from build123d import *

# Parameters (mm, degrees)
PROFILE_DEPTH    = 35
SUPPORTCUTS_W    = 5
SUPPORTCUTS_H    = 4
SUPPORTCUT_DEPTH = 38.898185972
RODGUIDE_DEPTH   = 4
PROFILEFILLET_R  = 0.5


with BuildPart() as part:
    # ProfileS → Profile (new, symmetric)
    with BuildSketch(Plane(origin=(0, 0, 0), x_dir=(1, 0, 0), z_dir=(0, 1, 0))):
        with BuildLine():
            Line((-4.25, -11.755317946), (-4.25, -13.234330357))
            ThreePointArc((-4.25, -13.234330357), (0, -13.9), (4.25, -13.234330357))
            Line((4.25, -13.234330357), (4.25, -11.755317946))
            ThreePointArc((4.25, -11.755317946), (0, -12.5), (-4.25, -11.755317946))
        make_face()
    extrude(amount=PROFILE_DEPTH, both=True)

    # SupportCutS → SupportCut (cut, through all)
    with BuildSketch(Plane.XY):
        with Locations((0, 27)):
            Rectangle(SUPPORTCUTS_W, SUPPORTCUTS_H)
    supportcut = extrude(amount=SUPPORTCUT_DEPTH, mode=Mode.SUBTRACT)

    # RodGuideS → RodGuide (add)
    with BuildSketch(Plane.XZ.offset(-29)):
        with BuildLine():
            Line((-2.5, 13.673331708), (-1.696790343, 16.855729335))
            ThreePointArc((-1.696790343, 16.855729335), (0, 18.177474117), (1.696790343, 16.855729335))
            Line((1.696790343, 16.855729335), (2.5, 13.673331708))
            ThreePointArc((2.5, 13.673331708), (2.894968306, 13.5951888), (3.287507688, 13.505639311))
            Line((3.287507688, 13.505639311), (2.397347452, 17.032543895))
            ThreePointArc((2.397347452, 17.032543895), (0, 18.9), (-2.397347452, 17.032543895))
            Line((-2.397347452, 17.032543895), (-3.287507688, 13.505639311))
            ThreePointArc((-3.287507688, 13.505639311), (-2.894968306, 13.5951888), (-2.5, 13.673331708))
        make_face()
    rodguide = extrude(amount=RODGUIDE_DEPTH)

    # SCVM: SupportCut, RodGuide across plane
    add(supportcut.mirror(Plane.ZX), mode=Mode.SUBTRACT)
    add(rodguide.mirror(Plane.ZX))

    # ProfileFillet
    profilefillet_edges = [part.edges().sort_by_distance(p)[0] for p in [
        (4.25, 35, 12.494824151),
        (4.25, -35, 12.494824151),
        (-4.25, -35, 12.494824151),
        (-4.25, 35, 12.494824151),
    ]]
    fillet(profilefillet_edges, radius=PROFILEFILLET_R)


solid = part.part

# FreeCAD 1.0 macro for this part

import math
import FreeCAD as App
import Part
import Sketcher
from FreeCAD import Vector
Q = App.Units.Quantity


def edges_at(feature, points):
    """Names of the edges that pass closest to the given points."""
    edges = feature.Shape.Edges
    near = lambda p: min(range(len(edges)), key=lambda i: edges[i].distToShape(Part.Vertex(*p))[0])
    return sorted({f"Edge{near(p) + 1}" for p in points})


def add_polygon(sketch, points):
    """Adds a closed chain of lines whose ends are joined by coincident constraints."""
    first, n = sketch.GeometryCount, len(points)
    for a, b in zip(points, points[1:] + points[:1]):
        sketch.addGeometry(Part.LineSegment(App.Vector(*a, 0), App.Vector(*b, 0)), False)
    for i in range(n):
        sketch.addConstraint(Sketcher.Constraint("Coincident", first + i, 2, first + (i + 1) % n, 1))

doc = App.newDocument("Part")
body = doc.addObject("PartDesign::Body", "Body")

sketch1 = doc.addObject("Sketcher::SketchObject", "Sketch")
body.addObject(sketch1)
sketch1.AttachmentSupport = (doc.XZ_Plane, [""])
sketch1.MapMode = "FlatFace"
sketch1.addGeometry([
    Part.LineSegment(Vector(-4.2, 11.8, 0), Vector(-4.2, 13.2, 0)),
    Part.ArcOfCircle(Part.Circle(Vector(0, 0, 0), Vector(0, 0, 1), 13.9), math.radians(72), math.radians(108)),
    Part.LineSegment(Vector(4.2, 13.2, 0), Vector(4.2, 11.8, 0)),
    Part.ArcOfCircle(Part.Circle(Vector(0, 0, 0), Vector(0, 0, 1), 12.5), math.radians(70), math.radians(110)),
], False)
sketch1.addConstraint([
    Sketcher.Constraint("Coincident", 0, 2, 1, 2),
    Sketcher.Constraint("Coincident", 1, 1, 2, 1),
    Sketcher.Constraint("Coincident", 2, 2, 3, 1),
    Sketcher.Constraint("Coincident", 3, 2, 0, 1),
    Sketcher.Constraint("Vertical", 0),
    Sketcher.Constraint("Vertical", 2),
    Sketcher.Constraint("Coincident", 1, 3, -1, 1),
    Sketcher.Constraint("Coincident", 3, 3, -1, 1),
    Sketcher.Constraint("Horizontal", 0, 2, 1, 1),
    Sketcher.Constraint("Radius", 1, Q("13.9 mm")),
    Sketcher.Constraint("Radius", 3, Q("12.5 mm")),
    Sketcher.Constraint("DistanceX", 0, 2, 1, 1, Q("8.5 mm")),
])
pad1 = doc.addObject("PartDesign::Pad", "Pad")
body.addObject(pad1)
pad1.Profile = sketch1
pad1.Length = 70
pad1.Midplane = True

sketch2 = doc.addObject("Sketcher::SketchObject", "Sketch001")
body.addObject(sketch2)
sketch2.AttachmentSupport = (doc.XY_Plane, [""])
sketch2.MapMode = "FlatFace"
add_polygon(sketch2, [(-2.5, 29), (-2.5, 25), (2.5, 25), (2.5, 29)])
sketch2.addConstraint([
    Sketcher.Constraint("Vertical", 0),
    Sketcher.Constraint("Horizontal", 1),
    Sketcher.Constraint("Vertical", 2),
    Sketcher.Constraint("Horizontal", 3),
    Sketcher.Constraint("DistanceX", 1, 1, 1, 2, Q("5 mm")),
    Sketcher.Constraint("DistanceY", 0, 2, 0, 1, Q("4 mm")),
    Sketcher.Constraint("DistanceY", -1, 1, 0, 2, Q("25 mm")),
    Sketcher.Constraint("DistanceX", 0, 2, -1, 1, Q("2.5 mm")),
])
pocket1 = doc.addObject("PartDesign::Pocket", "Pocket")
body.addObject(pocket1)
pocket1.Profile = sketch2
pocket1.Type = "ThroughAll"
pocket1.Reversed = True

sketch3 = doc.addObject("Sketcher::SketchObject", "Sketch002")
body.addObject(sketch3)
sketch3.AttachmentSupport = (doc.XZ_Plane, [""])
sketch3.MapMode = "FlatFace"
sketch3.AttachmentOffset = App.Placement(Vector(0, 0, -29), App.Rotation())
sketch3.addGeometry([
    Part.LineSegment(Vector(-2.5, 13.7, 0), Vector(-1.7, 16.9, 0)),
    Part.ArcOfCircle(Part.Circle(Vector(0, 16.4, 0), Vector(0, 0, 1), 1.8), math.radians(14), math.radians(166)),
    Part.LineSegment(Vector(1.7, 16.9, 0), Vector(2.5, 13.7, 0)),
    Part.ArcOfCircle(Part.Circle(Vector(0, 0, 0), Vector(0, 0, 1), 13.9), math.radians(76.32), math.radians(79.64)),
    Part.LineSegment(Vector(3.3, 13.5, 0), Vector(2.4, 17, 0)),
    Part.ArcOfCircle(Part.Circle(Vector(0, 16.4, 0), Vector(0, 0, 1), 2.5), math.radians(14), math.radians(166)),
    Part.LineSegment(Vector(-2.4, 17, 0), Vector(-3.3, 13.5, 0)),
    Part.ArcOfCircle(Part.Circle(Vector(0, 0, 0), Vector(0, 0, 1), 13.9), math.radians(100.36), math.radians(103.68)),
], False)
sketch3.addConstraint([
    Sketcher.Constraint("Tangent", 0, 2, 1, 2),
    Sketcher.Constraint("Tangent", 1, 1, 2, 1),
    Sketcher.Constraint("Coincident", 2, 2, 3, 2),
    Sketcher.Constraint("Coincident", 3, 1, 4, 1),
    Sketcher.Constraint("Tangent", 4, 2, 5, 1),
    Sketcher.Constraint("Tangent", 5, 2, 6, 1),
    Sketcher.Constraint("Coincident", 6, 2, 7, 2),
    Sketcher.Constraint("Coincident", 7, 1, 0, 1),
    Sketcher.Constraint("Coincident", 3, 3, -1, 1),
    Sketcher.Constraint("Coincident", 7, 3, -1, 1),
    Sketcher.Constraint("Coincident", 5, 3, 1, 3),
    Sketcher.Constraint("Equal", 3, 7),
    Sketcher.Constraint("Symmetric", 0, 2, 1, 1, -2),
    Sketcher.Constraint("Parallel", 2, 4),
    Sketcher.Constraint("Parallel", 0, 6),
    Sketcher.Constraint("Radius", 3, Q("13.9 mm")),
    Sketcher.Constraint("Radius", 1, Q("1.75 mm")),
    Sketcher.Constraint("DistanceX", -1, 1, 2, 2, Q("2.5 mm")),
    Sketcher.Constraint("Radius", 5, Q("2.472526 mm")),
    Sketcher.Constraint("DistanceX", 0, 2, -1, 1, Q("1.69679 mm")),
])
pad2 = doc.addObject("PartDesign::Pad", "Pad001")
body.addObject(pad2)
pad2.Profile = sketch3
pad2.Length = 4
doc.recompute()

mirrored = doc.addObject("PartDesign::Mirrored", "Mirrored")
body.addObject(mirrored)
mirrored.Originals = [pocket1, pad2]
mirrored.MirrorPlane = (doc.XZ_Plane, [""])
body.Tip = mirrored
doc.recompute()

fillet = doc.addObject("PartDesign::Fillet", "Fillet")
body.addObject(fillet)
fillet.Base = (mirrored, edges_at(mirrored, [
    (4.25, 35, 12.495),
    (4.25, -35, 12.495),
    (-4.25, -35, 12.495),
    (-4.25, 35, 12.495),
]))
fillet.Radius = 0.5

doc.recompute()
